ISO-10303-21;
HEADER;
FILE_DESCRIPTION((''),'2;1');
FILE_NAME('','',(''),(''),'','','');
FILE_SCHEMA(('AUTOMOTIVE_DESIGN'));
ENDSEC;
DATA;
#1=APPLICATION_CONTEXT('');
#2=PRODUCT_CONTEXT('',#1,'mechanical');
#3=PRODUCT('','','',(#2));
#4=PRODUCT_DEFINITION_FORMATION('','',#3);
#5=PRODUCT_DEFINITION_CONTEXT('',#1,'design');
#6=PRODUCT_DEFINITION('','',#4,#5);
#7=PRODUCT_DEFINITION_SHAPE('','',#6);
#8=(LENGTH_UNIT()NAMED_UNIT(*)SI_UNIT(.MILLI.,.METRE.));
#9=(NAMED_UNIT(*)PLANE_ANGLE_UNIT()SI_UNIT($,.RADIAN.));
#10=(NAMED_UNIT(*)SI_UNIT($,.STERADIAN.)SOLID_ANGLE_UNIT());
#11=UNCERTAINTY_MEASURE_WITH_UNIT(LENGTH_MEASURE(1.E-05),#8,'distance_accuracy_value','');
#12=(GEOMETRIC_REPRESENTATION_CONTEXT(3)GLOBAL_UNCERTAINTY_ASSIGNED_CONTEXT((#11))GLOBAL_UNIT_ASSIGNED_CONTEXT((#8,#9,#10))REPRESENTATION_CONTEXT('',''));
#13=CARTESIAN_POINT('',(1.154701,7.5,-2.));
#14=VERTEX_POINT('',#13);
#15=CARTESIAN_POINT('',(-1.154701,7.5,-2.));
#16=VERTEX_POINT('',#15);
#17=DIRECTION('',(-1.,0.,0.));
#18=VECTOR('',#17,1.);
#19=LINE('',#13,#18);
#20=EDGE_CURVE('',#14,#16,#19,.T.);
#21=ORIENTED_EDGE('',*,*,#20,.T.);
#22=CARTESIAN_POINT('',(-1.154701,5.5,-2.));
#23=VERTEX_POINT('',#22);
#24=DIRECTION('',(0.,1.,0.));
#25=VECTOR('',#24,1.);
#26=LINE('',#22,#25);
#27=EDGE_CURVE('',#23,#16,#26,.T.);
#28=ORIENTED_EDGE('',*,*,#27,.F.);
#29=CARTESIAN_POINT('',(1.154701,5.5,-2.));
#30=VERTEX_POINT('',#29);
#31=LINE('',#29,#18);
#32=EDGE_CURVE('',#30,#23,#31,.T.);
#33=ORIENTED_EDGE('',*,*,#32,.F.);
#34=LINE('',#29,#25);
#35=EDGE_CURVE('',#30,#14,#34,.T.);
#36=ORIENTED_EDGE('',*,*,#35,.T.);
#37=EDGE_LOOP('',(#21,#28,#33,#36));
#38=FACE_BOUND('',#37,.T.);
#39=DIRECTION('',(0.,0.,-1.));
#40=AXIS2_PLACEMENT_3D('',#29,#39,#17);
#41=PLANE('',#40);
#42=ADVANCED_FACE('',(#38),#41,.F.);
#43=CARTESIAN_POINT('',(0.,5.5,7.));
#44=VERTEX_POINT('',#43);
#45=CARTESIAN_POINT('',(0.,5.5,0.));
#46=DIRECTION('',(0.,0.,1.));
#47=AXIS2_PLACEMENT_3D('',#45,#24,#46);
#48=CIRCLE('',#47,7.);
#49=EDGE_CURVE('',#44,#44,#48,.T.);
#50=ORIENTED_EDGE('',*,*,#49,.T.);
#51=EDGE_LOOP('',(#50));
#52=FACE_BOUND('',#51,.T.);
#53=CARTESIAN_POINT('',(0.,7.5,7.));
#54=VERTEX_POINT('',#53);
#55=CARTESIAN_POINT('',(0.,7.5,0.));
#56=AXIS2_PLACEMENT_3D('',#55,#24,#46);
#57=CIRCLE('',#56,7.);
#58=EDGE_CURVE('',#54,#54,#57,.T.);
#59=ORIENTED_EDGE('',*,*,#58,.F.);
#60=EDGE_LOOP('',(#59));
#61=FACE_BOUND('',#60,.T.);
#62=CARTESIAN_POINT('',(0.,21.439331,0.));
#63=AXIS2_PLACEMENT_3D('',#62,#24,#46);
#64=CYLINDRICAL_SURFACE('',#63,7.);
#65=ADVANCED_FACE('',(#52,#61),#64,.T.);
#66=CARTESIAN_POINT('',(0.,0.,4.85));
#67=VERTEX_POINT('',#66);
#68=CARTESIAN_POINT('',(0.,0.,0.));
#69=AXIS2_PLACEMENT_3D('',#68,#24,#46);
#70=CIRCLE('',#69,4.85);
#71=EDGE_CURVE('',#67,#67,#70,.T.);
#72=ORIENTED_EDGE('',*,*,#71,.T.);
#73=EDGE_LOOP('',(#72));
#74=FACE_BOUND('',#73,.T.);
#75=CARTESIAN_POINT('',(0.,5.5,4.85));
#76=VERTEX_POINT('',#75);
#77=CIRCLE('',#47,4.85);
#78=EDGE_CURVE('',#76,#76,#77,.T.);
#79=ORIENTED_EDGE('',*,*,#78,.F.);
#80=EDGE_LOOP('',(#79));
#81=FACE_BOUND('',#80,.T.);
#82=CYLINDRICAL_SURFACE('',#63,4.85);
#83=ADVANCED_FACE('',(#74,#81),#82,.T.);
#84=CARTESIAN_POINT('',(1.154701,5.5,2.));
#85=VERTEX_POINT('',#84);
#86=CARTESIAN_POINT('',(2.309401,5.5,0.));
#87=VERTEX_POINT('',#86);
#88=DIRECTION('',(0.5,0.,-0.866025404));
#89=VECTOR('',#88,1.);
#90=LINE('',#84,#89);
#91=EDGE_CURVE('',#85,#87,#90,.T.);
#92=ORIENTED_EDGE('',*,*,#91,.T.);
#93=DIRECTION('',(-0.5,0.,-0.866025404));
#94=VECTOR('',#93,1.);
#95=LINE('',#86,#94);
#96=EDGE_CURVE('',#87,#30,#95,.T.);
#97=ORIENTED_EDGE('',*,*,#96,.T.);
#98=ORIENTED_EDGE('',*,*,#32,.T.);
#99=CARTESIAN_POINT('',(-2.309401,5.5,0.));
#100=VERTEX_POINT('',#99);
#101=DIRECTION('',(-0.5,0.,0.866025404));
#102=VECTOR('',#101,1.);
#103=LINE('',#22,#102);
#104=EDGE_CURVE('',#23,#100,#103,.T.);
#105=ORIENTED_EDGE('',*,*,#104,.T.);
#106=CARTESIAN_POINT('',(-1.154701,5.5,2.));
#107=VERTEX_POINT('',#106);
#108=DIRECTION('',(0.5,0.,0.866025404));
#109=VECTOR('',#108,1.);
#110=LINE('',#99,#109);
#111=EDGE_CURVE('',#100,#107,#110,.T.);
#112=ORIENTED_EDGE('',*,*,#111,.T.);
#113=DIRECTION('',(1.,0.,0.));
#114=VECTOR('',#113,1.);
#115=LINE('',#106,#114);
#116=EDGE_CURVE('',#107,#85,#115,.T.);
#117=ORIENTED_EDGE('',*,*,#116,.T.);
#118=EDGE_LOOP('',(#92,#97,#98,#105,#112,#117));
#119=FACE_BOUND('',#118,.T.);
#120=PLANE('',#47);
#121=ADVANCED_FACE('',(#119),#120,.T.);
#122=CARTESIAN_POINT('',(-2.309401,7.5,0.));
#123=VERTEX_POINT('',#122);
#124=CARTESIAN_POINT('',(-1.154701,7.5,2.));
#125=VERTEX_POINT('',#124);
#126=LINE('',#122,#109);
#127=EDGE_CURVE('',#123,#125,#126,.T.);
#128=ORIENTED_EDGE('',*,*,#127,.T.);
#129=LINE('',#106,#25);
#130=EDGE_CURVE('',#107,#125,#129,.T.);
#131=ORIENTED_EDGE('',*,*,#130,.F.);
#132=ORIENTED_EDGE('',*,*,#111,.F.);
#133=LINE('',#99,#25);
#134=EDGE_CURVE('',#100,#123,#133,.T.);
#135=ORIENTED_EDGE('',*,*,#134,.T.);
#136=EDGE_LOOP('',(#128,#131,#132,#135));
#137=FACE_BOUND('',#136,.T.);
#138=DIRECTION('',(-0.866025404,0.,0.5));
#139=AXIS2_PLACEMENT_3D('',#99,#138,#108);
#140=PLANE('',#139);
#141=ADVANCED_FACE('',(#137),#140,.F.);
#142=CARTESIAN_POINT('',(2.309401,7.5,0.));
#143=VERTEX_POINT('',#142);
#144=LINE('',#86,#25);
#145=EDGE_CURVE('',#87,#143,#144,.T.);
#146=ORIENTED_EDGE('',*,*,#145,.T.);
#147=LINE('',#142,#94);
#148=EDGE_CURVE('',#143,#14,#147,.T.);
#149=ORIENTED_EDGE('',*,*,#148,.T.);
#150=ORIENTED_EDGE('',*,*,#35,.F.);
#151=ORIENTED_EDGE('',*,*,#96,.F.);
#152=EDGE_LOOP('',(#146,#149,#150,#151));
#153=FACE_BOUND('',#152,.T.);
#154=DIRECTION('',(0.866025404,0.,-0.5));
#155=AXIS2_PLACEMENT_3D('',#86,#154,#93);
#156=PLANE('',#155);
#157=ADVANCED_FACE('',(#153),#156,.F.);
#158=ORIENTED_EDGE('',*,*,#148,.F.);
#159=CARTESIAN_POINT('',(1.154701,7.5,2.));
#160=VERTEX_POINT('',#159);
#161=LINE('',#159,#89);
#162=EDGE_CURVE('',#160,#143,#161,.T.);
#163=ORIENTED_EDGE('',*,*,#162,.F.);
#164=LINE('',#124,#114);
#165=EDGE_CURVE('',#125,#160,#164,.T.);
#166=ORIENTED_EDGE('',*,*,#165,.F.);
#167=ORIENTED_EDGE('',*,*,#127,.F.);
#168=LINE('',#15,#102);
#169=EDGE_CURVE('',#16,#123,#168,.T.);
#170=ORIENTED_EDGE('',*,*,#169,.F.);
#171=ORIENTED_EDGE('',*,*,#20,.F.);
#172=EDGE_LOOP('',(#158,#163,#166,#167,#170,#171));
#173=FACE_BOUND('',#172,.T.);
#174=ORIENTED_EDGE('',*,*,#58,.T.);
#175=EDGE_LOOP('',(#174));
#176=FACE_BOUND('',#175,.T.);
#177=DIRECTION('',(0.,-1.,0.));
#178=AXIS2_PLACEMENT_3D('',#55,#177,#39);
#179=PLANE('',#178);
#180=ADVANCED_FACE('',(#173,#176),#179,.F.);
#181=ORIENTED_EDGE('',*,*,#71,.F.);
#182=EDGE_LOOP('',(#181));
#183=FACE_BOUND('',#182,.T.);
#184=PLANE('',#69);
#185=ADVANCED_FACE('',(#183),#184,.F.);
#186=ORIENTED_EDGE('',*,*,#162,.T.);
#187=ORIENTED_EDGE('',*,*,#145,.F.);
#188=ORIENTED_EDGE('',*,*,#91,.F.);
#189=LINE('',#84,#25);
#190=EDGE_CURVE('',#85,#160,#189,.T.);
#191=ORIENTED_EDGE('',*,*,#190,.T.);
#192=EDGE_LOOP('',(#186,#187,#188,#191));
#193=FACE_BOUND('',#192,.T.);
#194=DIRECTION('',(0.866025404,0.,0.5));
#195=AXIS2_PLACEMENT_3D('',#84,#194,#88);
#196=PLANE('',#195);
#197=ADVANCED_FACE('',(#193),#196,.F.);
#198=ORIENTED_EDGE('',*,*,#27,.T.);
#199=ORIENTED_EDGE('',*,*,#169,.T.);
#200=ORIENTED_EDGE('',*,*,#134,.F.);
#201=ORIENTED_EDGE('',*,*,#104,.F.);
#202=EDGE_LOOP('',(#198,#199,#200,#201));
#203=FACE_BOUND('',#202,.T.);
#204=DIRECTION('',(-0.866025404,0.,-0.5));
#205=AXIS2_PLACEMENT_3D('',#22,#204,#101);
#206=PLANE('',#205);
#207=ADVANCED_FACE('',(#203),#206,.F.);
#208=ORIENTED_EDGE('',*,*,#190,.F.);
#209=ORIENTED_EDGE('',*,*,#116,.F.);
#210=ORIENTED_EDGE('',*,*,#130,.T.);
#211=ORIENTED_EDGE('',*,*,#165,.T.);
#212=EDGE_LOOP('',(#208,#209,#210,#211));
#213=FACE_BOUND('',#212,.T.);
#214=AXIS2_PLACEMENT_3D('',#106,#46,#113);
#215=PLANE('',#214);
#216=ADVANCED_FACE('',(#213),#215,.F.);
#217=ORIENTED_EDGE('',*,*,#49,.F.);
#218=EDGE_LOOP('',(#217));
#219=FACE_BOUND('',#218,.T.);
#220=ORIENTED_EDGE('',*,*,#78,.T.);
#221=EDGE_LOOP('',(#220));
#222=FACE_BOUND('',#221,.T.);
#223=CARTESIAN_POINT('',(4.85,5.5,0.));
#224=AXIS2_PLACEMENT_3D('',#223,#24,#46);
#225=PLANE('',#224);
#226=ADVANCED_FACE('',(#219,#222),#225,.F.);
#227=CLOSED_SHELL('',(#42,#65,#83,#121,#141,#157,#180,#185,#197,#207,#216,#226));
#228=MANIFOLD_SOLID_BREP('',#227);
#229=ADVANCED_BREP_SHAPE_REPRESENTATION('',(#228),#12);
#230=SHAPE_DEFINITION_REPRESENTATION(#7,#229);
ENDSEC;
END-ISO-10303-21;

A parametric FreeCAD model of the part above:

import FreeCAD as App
import Part
import Sketcher
from FreeCAD import Vector
Q = App.Units.Quantity


def add_polygon(sketch, points):
    """Adds a closed chain of lines whose ends are joined by coincident constraints."""
    first, n = sketch.GeometryCount, len(points)
    for a, b in zip(points, points[1:] + points[:1]):
        sketch.addGeometry(Part.LineSegment(App.Vector(*a, 0), App.Vector(*b, 0)), False)
    for i in range(n):
        sketch.addConstraint(Sketcher.Constraint("Coincident", first + i, 2, first + (i + 1) % n, 1))

doc = App.newDocument("Part")
body = doc.addObject("PartDesign::Body", "Body")

sketch1 = body.newObject("Sketcher::SketchObject", "Sketch")
sketch1.AttachmentSupport = (doc.getObject("XY_Plane"), [""])
sketch1.MapMode = "FlatFace"
add_polygon(sketch1, [(7, 7.5), (0, 7.5), (0, 0), (4.8, 0), (4.8, 5.5), (7, 5.5)])
sketch1.addConstraint(Sketcher.Constraint("Horizontal", 0))
sketch1.addConstraint(Sketcher.Constraint("Vertical", 1))
sketch1.addConstraint(Sketcher.Constraint("Horizontal", 2))
sketch1.addConstraint(Sketcher.Constraint("Vertical", 3))
sketch1.addConstraint(Sketcher.Constraint("Horizontal", 4))
sketch1.addConstraint(Sketcher.Constraint("Vertical", 5))
sketch1.addConstraint(Sketcher.Constraint("Coincident", 1, 2, -1, 1))
sketch1.addConstraint(Sketcher.Constraint("DistanceX", 0, 2, 0, 1, Q("7 mm")))
sketch1.addConstraint(Sketcher.Constraint("DistanceY", 5, 1, 5, 2, Q("2 mm")))
sketch1.addConstraint(Sketcher.Constraint("DistanceY", 1, 2, 1, 1, Q("7.5 mm")))
sketch1.addConstraint(Sketcher.Constraint("DistanceX", 2, 1, 2, 2, Q("4.85 mm")))
revolution = body.newObject("PartDesign::Revolution", "Revolution")
revolution.Profile = sketch1
revolution.ReferenceAxis = (sketch1, ["V_Axis"])
revolution.Angle = 360

sketch2 = body.newObject("Sketcher::SketchObject", "Sketch001")
sketch2.AttachmentSupport = (doc.getObject("XZ_Plane"), [""])
sketch2.MapMode = "FlatFace"
sketch2.AttachmentOffset = App.Placement(Vector(0, 0, -7.5), App.Rotation())
add_polygon(sketch2, [(2.3, 0), (1.2, -2), (-1.2, -2), (-2.3, 0), (-1.2, 2), (1.2, 2)])
sketch2.addConstraint(Sketcher.Constraint("Horizontal", 1))
sketch2.addConstraint(Sketcher.Constraint("Horizontal", 4))
sketch2.addConstraint(Sketcher.Constraint("Symmetric", 0, 2, 3, 2, -1, 1))
sketch2.addConstraint(Sketcher.Constraint("Symmetric", 2, 2, 5, 2, -1, 1))
sketch2.addConstraint(Sketcher.Constraint("PointOnObject", 2, 2, -1))
sketch2.addConstraint(Sketcher.Constraint("Parallel", 2, 5))
sketch2.addConstraint(Sketcher.Constraint("Vertical", 1, 2, 3, 2))
sketch2.addConstraint(Sketcher.Constraint("Angle", 0, Q("-120 deg")))
sketch2.addConstraint(Sketcher.Constraint("DistanceY", 0, 2, -1, 1, Q("2 mm")))
sketch2.addConstraint(Sketcher.Constraint("DistanceX", 1, 2, 1, 1, Q("2.309401 mm")))
pocket1 = body.newObject("PartDesign::Pocket", "Pocket")
pocket1.Profile = sketch2
pocket1.Length = 2
pocket1.Reversed = True

doc.recompute()
